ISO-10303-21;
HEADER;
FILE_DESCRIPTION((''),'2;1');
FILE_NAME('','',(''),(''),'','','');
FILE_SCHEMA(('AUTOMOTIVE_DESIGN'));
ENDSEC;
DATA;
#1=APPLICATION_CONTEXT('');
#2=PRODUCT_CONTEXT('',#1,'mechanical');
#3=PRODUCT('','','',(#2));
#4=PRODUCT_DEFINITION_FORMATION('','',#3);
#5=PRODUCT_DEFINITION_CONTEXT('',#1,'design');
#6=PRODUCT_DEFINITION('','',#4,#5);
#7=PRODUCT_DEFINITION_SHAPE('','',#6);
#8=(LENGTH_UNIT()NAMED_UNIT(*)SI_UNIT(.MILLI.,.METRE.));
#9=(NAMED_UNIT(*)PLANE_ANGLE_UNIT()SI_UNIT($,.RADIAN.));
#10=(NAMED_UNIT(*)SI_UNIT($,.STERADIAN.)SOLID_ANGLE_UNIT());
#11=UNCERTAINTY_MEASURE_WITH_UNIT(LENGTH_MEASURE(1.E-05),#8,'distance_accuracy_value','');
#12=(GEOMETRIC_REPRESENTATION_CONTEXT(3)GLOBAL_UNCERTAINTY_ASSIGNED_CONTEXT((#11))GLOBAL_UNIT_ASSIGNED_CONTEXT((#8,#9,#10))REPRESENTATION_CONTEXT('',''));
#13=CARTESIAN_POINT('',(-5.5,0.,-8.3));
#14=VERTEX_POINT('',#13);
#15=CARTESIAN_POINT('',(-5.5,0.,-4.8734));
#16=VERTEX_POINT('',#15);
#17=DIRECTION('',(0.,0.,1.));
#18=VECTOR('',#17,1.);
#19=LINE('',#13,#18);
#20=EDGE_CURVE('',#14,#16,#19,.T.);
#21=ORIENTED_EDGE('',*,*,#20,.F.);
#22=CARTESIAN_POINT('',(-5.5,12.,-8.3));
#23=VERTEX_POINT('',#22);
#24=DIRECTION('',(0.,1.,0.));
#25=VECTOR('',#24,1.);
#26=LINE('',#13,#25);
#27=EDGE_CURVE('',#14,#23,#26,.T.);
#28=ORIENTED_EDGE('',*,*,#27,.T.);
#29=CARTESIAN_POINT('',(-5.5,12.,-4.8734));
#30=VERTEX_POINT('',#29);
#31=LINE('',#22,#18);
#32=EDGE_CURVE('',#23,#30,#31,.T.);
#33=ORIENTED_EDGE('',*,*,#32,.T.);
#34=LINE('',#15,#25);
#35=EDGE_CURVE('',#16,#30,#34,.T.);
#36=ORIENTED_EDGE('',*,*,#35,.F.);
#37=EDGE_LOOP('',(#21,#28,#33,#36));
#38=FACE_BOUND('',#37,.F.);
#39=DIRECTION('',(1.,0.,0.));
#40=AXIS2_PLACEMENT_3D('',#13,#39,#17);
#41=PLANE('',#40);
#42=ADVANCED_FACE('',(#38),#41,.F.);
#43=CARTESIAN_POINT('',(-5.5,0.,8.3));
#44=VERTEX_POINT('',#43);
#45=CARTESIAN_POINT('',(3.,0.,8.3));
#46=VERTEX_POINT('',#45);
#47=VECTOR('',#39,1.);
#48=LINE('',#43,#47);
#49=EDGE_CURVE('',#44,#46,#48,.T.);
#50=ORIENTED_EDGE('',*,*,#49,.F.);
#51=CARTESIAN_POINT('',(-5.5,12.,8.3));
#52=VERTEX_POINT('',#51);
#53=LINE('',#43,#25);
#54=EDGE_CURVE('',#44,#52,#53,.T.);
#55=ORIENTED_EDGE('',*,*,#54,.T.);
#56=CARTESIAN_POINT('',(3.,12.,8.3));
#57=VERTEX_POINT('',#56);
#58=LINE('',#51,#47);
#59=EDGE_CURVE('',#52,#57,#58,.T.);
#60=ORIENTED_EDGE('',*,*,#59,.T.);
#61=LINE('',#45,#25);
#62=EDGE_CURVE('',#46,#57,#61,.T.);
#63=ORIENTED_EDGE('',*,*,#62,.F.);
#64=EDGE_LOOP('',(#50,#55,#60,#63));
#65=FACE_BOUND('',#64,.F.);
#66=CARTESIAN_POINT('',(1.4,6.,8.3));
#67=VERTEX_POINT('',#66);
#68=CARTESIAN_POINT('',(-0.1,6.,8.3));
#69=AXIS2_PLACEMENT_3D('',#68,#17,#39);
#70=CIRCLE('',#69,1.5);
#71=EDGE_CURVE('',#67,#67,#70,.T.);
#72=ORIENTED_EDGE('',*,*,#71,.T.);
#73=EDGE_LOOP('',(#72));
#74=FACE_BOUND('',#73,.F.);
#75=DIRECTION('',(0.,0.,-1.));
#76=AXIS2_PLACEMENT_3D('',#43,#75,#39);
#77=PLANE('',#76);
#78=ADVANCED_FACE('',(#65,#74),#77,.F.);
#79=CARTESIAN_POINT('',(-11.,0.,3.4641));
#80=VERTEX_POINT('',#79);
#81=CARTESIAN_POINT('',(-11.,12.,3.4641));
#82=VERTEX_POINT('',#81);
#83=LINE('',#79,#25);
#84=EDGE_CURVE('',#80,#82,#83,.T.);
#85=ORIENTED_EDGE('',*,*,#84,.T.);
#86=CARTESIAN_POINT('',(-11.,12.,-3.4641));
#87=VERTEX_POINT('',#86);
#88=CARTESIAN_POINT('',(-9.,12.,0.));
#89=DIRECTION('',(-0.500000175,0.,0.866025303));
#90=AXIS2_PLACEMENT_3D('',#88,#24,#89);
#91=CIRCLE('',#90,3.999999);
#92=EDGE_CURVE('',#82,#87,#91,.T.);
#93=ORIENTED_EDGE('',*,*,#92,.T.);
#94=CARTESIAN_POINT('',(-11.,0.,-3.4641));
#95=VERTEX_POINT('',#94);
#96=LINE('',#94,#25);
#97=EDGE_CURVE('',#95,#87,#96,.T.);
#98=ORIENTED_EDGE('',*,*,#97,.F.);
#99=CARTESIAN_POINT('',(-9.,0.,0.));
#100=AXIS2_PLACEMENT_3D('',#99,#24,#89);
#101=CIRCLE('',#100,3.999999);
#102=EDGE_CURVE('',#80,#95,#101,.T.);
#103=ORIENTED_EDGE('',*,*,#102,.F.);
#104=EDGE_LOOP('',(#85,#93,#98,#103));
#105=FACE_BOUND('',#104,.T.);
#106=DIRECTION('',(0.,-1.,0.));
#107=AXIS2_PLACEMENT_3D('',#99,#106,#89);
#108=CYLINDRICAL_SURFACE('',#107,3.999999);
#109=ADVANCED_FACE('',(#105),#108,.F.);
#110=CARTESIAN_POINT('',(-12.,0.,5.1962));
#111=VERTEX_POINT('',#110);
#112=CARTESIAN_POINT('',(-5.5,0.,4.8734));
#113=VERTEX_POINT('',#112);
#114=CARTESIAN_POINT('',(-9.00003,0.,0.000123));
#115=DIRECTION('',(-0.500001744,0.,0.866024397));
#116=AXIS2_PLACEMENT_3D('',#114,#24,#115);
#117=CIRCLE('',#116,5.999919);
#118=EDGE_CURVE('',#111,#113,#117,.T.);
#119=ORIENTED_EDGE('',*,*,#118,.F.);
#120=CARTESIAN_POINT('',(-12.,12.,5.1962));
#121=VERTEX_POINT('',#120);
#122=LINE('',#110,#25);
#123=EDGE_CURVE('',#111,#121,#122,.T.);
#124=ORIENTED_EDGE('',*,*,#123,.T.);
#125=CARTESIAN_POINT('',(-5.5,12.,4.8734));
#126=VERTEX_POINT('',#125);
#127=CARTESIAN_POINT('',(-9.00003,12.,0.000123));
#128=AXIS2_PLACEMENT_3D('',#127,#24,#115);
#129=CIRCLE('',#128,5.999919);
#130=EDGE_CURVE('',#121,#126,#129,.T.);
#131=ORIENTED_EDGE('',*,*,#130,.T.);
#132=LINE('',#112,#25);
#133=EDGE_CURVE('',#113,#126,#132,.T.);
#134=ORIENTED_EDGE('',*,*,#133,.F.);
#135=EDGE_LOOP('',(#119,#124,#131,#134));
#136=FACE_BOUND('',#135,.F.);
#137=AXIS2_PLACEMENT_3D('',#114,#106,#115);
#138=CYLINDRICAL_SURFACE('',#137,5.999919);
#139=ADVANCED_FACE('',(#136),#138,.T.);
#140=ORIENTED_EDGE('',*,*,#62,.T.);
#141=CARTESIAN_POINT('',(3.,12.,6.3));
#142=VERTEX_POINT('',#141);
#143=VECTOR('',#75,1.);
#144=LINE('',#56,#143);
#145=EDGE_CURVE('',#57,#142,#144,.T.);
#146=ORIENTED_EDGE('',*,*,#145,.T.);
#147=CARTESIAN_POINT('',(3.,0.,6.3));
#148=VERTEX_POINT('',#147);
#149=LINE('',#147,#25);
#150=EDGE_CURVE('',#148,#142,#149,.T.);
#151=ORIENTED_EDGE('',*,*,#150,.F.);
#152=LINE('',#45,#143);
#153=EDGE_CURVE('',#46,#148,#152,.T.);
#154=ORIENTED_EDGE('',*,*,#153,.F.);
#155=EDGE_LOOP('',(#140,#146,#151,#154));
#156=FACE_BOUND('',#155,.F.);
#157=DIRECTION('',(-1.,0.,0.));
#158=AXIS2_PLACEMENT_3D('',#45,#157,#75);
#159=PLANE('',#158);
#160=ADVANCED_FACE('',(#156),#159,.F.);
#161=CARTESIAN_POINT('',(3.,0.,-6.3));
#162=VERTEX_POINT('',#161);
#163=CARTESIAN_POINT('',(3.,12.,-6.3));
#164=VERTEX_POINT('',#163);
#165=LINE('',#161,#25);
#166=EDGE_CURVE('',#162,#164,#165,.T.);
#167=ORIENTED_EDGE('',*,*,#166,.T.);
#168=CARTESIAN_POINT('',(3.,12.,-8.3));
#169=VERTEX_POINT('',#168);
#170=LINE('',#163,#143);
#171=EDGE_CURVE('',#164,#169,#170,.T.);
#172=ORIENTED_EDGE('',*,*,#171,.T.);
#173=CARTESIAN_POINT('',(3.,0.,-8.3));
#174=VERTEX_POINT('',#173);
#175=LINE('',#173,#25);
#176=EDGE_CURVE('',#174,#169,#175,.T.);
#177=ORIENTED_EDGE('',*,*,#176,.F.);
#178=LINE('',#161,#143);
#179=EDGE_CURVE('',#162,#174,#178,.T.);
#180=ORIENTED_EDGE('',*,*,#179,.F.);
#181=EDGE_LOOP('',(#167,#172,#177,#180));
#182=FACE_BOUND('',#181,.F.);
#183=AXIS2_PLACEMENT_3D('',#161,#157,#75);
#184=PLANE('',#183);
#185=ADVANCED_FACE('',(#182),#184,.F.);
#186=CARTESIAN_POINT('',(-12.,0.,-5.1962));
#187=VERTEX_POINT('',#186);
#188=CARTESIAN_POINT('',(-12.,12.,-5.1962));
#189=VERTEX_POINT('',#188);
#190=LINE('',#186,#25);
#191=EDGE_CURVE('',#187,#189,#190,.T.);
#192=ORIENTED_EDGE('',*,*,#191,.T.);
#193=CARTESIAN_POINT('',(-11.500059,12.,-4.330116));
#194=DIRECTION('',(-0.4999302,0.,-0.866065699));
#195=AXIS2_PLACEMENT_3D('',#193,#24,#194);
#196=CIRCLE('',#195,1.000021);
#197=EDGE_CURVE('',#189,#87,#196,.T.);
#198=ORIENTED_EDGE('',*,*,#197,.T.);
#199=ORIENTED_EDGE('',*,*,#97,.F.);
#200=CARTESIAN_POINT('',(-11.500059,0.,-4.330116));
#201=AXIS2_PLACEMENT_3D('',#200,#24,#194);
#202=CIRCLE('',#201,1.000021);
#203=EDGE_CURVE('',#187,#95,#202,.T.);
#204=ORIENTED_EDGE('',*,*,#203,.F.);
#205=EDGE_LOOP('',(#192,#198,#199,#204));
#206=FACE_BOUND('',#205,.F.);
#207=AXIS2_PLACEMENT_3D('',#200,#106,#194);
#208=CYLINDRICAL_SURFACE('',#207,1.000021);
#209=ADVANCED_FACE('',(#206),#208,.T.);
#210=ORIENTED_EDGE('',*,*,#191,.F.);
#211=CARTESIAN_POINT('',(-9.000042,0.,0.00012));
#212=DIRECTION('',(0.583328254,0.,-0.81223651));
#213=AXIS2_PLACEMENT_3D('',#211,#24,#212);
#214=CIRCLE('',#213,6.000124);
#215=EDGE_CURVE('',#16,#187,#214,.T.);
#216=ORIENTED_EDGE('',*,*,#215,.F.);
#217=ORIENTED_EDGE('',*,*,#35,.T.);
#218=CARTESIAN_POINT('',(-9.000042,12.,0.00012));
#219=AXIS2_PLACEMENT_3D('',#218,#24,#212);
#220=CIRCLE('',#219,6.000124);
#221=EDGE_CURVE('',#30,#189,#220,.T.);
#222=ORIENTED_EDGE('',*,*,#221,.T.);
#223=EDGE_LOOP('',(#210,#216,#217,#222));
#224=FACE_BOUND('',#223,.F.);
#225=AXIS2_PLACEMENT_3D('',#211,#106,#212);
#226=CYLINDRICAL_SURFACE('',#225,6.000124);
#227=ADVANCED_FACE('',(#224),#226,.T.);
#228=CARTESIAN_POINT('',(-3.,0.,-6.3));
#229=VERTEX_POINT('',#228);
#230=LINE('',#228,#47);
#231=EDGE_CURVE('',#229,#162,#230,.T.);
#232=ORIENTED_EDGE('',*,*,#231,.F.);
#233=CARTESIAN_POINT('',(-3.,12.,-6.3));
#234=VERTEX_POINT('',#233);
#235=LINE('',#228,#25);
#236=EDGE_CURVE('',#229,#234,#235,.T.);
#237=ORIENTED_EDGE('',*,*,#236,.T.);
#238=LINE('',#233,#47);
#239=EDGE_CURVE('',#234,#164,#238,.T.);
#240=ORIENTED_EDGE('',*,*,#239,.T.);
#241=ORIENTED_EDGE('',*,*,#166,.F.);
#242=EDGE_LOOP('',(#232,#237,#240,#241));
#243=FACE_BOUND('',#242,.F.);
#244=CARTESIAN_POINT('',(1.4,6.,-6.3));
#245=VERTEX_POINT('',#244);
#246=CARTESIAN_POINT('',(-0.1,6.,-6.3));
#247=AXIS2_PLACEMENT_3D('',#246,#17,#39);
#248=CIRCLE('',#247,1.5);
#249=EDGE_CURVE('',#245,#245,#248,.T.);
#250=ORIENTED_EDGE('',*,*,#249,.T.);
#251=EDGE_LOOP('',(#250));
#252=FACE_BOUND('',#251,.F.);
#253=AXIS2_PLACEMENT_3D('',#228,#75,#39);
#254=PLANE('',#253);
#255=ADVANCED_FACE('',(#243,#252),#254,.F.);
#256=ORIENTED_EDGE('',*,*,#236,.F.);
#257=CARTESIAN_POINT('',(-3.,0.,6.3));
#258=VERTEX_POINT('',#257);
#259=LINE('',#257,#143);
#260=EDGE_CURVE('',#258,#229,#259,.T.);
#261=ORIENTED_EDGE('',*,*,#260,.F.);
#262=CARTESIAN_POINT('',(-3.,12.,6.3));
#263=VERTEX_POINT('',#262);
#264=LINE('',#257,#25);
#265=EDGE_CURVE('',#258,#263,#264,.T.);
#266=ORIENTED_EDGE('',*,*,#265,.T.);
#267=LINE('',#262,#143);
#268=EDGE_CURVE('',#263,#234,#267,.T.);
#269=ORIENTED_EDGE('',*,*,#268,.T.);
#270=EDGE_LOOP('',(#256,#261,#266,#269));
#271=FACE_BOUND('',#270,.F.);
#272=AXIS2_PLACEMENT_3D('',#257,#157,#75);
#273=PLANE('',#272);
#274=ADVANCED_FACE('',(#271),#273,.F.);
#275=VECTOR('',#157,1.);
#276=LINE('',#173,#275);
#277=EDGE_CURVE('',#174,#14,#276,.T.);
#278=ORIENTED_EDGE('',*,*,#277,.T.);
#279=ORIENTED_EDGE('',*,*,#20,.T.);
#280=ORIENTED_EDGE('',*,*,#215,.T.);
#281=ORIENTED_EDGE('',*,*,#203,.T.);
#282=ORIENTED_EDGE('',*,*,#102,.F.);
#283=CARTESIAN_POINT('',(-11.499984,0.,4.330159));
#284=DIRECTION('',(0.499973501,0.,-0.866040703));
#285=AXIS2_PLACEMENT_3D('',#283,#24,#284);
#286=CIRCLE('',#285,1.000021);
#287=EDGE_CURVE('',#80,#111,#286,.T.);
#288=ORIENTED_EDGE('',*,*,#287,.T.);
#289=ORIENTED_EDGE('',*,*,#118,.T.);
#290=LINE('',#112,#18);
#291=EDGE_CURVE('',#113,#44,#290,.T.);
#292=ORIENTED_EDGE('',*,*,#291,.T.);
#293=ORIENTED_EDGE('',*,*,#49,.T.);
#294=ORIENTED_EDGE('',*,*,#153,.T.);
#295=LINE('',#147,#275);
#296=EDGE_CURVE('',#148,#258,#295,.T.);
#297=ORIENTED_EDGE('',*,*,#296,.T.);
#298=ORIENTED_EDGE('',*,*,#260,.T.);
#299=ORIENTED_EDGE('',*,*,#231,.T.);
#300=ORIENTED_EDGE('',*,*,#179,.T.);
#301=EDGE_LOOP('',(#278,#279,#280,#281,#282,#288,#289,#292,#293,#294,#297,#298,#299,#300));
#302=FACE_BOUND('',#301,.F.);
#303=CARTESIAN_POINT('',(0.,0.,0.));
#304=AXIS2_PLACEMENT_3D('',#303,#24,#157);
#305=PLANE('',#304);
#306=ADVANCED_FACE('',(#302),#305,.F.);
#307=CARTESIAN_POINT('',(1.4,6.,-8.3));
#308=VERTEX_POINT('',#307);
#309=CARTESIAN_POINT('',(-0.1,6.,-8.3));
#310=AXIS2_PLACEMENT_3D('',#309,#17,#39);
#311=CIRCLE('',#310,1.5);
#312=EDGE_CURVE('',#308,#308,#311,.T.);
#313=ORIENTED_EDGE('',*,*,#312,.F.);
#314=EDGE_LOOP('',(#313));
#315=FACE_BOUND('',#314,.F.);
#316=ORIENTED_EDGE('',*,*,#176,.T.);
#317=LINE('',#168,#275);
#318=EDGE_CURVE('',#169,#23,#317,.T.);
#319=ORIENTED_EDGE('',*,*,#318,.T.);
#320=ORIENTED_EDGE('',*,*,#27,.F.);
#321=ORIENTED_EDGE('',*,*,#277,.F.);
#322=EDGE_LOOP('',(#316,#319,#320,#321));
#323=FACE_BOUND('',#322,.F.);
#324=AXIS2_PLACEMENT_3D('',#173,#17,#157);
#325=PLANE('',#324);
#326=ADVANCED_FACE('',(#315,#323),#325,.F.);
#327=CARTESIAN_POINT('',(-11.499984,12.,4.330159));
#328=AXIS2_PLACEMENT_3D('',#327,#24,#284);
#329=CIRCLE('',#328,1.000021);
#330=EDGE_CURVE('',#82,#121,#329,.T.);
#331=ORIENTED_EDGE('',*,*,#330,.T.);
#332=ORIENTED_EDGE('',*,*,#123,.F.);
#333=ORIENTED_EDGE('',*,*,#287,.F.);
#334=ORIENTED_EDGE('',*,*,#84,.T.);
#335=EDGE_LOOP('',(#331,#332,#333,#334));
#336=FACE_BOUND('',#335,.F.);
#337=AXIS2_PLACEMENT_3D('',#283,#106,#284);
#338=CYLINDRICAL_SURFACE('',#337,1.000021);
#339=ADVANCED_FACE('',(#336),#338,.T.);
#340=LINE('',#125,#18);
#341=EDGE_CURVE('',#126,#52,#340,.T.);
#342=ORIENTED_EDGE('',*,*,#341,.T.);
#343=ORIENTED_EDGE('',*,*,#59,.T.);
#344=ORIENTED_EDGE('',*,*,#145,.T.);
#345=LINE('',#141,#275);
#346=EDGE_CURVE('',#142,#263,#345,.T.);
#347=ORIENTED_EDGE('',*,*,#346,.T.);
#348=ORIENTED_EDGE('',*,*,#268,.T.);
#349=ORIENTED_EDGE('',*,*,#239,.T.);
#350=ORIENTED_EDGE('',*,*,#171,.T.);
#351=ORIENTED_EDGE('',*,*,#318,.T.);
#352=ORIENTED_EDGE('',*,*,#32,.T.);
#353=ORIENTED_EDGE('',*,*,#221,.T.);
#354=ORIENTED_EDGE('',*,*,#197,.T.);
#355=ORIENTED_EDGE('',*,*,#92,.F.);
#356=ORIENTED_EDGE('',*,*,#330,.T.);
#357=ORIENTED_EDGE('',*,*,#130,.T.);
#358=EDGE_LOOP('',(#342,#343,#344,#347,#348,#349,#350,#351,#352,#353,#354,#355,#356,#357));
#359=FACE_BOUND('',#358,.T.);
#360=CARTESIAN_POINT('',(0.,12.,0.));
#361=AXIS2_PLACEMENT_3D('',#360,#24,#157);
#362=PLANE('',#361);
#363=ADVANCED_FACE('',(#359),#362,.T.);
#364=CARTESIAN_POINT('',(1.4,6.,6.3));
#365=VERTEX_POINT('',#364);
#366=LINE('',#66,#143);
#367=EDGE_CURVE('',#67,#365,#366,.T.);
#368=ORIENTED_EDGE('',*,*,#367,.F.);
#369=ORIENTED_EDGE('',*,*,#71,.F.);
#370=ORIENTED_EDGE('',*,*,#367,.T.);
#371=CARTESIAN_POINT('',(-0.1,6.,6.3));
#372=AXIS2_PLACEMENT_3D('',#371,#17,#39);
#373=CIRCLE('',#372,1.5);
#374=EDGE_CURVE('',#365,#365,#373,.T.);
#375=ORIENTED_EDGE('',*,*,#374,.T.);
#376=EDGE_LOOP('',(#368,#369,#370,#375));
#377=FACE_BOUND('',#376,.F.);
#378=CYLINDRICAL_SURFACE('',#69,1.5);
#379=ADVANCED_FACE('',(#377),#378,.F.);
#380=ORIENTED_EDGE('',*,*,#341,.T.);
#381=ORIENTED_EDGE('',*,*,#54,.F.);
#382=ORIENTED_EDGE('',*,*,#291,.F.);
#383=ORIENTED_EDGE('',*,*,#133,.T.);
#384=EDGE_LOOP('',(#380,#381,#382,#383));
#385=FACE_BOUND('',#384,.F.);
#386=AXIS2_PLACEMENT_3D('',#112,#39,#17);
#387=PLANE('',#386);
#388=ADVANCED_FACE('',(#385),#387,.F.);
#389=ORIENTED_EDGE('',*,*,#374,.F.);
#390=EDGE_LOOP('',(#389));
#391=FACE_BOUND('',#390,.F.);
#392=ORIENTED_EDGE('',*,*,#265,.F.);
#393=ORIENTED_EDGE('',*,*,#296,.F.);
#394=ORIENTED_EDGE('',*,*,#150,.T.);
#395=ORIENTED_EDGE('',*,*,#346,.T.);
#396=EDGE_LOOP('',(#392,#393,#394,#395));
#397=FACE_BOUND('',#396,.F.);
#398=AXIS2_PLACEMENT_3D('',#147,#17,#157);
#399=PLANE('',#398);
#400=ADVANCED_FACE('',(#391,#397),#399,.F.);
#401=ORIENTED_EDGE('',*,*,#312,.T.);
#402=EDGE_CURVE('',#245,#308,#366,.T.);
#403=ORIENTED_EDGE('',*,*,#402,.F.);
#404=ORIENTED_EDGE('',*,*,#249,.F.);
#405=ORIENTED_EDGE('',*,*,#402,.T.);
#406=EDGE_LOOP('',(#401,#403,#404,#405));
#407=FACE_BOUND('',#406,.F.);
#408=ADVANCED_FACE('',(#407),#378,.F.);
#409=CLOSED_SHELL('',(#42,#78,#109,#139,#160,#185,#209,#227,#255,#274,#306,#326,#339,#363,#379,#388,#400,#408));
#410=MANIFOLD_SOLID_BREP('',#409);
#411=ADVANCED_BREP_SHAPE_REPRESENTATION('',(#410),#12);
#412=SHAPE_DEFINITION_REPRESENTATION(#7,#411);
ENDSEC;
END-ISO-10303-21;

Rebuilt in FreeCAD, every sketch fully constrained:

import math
import FreeCAD as App
import Part
import Sketcher

V = App.Vector
Q = App.Units.Quantity

doc = App.newDocument("Part")
body = doc.addObject("PartDesign::Body", "Body")

sketch1 = body.newObject("Sketcher::SketchObject", "Sketch")
sketch1.AttachmentSupport = (doc.getObject("XZ_Plane"), [""])
sketch1.MapMode = "FlatFace"
sketch1.addGeometry([
    Part.LineSegment(V(-5.5, 4.9, 0), V(-5.5, 8.3, 0)),
    Part.LineSegment(V(-5.5, 8.3, 0), V(3, 8.3, 0)),
    Part.LineSegment(V(3, 8.3, 0), V(3, 6.3, 0)),
    Part.LineSegment(V(3, 6.3, 0), V(-3, 6.3, 0)),
    Part.LineSegment(V(-3, 6.3, 0), V(-3, -6.3, 0)),
    Part.LineSegment(V(-3, -6.3, 0), V(3, -6.3, 0)),
    Part.LineSegment(V(3, -6.3, 0), V(3, -8.3, 0)),
    Part.LineSegment(V(3, -8.3, 0), V(-5.5, -8.3, 0)),
    Part.LineSegment(V(-5.5, -8.3, 0), V(-5.5, -4.9, 0)),
    Part.ArcOfCircle(Part.Circle(V(-9, 0, 0), V(0, 0, 1), 6), math.radians(-120), math.radians(-54)),
    Part.ArcOfCircle(Part.Circle(V(-11.5, -4.3, 0), V(0, 0, 1), 1), math.radians(60), math.radians(240)),
    Part.ArcOfCircle(Part.Circle(V(-9, 0, 0), V(0, 0, 1), 4), math.radians(-120), math.radians(120)),
    Part.ArcOfCircle(Part.Circle(V(-11.5, 4.3, 0), V(0, 0, 1), 1), math.radians(120), math.radians(300)),
    Part.ArcOfCircle(Part.Circle(V(-9, 0, 0), V(0, 0, 1), 6), math.radians(54), math.radians(120)),
], False)
sketch1.addConstraint([
    Sketcher.Constraint("Coincident", 0, 2, 1, 1),
    Sketcher.Constraint("Coincident", 1, 2, 2, 1),
    Sketcher.Constraint("Coincident", 2, 2, 3, 1),
    Sketcher.Constraint("Coincident", 3, 2, 4, 1),
    Sketcher.Constraint("Coincident", 4, 2, 5, 1),
    Sketcher.Constraint("Coincident", 5, 2, 6, 1),
    Sketcher.Constraint("Coincident", 6, 2, 7, 1),
    Sketcher.Constraint("Coincident", 7, 2, 8, 1),
    Sketcher.Constraint("Coincident", 8, 2, 9, 2),
    Sketcher.Constraint("Tangent", 9, 1, 10, 2),
    Sketcher.Constraint("Tangent", 10, 1, 11, 1),
    Sketcher.Constraint("Tangent", 11, 2, 12, 2),
    Sketcher.Constraint("Tangent", 12, 1, 13, 2),
    Sketcher.Constraint("Coincident", 13, 1, 0, 1),
    Sketcher.Constraint("Vertical", 0),
    Sketcher.Constraint("Horizontal", 1),
    Sketcher.Constraint("Vertical", 2),
    Sketcher.Constraint("Horizontal", 3),
    Sketcher.Constraint("Vertical", 4),
    Sketcher.Constraint("Horizontal", 5),
    Sketcher.Constraint("Vertical", 6),
    Sketcher.Constraint("Horizontal", 7),
    Sketcher.Constraint("Vertical", 8),
    Sketcher.Constraint("Coincident", 11, 3, 9, 3),
    Sketcher.Constraint("Coincident", 13, 3, 9, 3),
    Sketcher.Constraint("Equal", 10, 12),
    Sketcher.Constraint("Symmetric", 2, 2, 4, 2, -1, 1),
    Sketcher.Constraint("Symmetric", 10, 3, 12, 3, -1),
    Sketcher.Constraint("Symmetric", 1, 2, 6, 2, -1),
    Sketcher.Constraint("Vertical", 0, 2, 7, 2),
    Sketcher.Constraint("Radius", 9, Q("6 mm")),
    Sketcher.Constraint("Radius", 10, Q("1 mm")),
    Sketcher.Constraint("DistanceX", 3, 2, 3, 1, Q("6 mm")),
    Sketcher.Constraint("DistanceY", 2, 2, 2, 1, Q("2 mm")),
    Sketcher.Constraint("DistanceY", 4, 2, 4, 1, Q("12.6 mm")),
    Sketcher.Constraint("DistanceX", 12, 3, 0, 2, Q("6 mm")),
    Sketcher.Constraint("DistanceX", 9, 3, 3, 2, Q("6 mm")),
    Sketcher.Constraint("DistanceX", 10, 1, 9, 3, Q("2 mm")),
])
pad1 = body.newObject("PartDesign::Pad", "Pad")
pad1.Profile = sketch1
pad1.Length = 12
pad1.Reversed = True

sketch2 = body.newObject("Sketcher::SketchObject", "Sketch001")
sketch2.AttachmentSupport = (doc.getObject("XY_Plane"), [""])
sketch2.MapMode = "FlatFace"
sketch2.AttachmentOffset = App.Placement(V(0, 0, 8.3), App.Rotation())
sketch2.addGeometry(Part.Circle(V(-0.1, 6, 0), V(0, 0, 1), 1.5), False)
sketch2.addConstraint([
    Sketcher.Constraint("Diameter", 0, Q("3 mm")),
    Sketcher.Constraint("DistanceY", -1, 1, 0, 3, Q("6 mm")),
    Sketcher.Constraint("DistanceX", 0, 3, -1, 1, Q("0.1 mm")),
])
pocket1 = body.newObject("PartDesign::Pocket", "Pocket")
pocket1.Profile = sketch2
pocket1.Length = 65.75

doc.recompute()
